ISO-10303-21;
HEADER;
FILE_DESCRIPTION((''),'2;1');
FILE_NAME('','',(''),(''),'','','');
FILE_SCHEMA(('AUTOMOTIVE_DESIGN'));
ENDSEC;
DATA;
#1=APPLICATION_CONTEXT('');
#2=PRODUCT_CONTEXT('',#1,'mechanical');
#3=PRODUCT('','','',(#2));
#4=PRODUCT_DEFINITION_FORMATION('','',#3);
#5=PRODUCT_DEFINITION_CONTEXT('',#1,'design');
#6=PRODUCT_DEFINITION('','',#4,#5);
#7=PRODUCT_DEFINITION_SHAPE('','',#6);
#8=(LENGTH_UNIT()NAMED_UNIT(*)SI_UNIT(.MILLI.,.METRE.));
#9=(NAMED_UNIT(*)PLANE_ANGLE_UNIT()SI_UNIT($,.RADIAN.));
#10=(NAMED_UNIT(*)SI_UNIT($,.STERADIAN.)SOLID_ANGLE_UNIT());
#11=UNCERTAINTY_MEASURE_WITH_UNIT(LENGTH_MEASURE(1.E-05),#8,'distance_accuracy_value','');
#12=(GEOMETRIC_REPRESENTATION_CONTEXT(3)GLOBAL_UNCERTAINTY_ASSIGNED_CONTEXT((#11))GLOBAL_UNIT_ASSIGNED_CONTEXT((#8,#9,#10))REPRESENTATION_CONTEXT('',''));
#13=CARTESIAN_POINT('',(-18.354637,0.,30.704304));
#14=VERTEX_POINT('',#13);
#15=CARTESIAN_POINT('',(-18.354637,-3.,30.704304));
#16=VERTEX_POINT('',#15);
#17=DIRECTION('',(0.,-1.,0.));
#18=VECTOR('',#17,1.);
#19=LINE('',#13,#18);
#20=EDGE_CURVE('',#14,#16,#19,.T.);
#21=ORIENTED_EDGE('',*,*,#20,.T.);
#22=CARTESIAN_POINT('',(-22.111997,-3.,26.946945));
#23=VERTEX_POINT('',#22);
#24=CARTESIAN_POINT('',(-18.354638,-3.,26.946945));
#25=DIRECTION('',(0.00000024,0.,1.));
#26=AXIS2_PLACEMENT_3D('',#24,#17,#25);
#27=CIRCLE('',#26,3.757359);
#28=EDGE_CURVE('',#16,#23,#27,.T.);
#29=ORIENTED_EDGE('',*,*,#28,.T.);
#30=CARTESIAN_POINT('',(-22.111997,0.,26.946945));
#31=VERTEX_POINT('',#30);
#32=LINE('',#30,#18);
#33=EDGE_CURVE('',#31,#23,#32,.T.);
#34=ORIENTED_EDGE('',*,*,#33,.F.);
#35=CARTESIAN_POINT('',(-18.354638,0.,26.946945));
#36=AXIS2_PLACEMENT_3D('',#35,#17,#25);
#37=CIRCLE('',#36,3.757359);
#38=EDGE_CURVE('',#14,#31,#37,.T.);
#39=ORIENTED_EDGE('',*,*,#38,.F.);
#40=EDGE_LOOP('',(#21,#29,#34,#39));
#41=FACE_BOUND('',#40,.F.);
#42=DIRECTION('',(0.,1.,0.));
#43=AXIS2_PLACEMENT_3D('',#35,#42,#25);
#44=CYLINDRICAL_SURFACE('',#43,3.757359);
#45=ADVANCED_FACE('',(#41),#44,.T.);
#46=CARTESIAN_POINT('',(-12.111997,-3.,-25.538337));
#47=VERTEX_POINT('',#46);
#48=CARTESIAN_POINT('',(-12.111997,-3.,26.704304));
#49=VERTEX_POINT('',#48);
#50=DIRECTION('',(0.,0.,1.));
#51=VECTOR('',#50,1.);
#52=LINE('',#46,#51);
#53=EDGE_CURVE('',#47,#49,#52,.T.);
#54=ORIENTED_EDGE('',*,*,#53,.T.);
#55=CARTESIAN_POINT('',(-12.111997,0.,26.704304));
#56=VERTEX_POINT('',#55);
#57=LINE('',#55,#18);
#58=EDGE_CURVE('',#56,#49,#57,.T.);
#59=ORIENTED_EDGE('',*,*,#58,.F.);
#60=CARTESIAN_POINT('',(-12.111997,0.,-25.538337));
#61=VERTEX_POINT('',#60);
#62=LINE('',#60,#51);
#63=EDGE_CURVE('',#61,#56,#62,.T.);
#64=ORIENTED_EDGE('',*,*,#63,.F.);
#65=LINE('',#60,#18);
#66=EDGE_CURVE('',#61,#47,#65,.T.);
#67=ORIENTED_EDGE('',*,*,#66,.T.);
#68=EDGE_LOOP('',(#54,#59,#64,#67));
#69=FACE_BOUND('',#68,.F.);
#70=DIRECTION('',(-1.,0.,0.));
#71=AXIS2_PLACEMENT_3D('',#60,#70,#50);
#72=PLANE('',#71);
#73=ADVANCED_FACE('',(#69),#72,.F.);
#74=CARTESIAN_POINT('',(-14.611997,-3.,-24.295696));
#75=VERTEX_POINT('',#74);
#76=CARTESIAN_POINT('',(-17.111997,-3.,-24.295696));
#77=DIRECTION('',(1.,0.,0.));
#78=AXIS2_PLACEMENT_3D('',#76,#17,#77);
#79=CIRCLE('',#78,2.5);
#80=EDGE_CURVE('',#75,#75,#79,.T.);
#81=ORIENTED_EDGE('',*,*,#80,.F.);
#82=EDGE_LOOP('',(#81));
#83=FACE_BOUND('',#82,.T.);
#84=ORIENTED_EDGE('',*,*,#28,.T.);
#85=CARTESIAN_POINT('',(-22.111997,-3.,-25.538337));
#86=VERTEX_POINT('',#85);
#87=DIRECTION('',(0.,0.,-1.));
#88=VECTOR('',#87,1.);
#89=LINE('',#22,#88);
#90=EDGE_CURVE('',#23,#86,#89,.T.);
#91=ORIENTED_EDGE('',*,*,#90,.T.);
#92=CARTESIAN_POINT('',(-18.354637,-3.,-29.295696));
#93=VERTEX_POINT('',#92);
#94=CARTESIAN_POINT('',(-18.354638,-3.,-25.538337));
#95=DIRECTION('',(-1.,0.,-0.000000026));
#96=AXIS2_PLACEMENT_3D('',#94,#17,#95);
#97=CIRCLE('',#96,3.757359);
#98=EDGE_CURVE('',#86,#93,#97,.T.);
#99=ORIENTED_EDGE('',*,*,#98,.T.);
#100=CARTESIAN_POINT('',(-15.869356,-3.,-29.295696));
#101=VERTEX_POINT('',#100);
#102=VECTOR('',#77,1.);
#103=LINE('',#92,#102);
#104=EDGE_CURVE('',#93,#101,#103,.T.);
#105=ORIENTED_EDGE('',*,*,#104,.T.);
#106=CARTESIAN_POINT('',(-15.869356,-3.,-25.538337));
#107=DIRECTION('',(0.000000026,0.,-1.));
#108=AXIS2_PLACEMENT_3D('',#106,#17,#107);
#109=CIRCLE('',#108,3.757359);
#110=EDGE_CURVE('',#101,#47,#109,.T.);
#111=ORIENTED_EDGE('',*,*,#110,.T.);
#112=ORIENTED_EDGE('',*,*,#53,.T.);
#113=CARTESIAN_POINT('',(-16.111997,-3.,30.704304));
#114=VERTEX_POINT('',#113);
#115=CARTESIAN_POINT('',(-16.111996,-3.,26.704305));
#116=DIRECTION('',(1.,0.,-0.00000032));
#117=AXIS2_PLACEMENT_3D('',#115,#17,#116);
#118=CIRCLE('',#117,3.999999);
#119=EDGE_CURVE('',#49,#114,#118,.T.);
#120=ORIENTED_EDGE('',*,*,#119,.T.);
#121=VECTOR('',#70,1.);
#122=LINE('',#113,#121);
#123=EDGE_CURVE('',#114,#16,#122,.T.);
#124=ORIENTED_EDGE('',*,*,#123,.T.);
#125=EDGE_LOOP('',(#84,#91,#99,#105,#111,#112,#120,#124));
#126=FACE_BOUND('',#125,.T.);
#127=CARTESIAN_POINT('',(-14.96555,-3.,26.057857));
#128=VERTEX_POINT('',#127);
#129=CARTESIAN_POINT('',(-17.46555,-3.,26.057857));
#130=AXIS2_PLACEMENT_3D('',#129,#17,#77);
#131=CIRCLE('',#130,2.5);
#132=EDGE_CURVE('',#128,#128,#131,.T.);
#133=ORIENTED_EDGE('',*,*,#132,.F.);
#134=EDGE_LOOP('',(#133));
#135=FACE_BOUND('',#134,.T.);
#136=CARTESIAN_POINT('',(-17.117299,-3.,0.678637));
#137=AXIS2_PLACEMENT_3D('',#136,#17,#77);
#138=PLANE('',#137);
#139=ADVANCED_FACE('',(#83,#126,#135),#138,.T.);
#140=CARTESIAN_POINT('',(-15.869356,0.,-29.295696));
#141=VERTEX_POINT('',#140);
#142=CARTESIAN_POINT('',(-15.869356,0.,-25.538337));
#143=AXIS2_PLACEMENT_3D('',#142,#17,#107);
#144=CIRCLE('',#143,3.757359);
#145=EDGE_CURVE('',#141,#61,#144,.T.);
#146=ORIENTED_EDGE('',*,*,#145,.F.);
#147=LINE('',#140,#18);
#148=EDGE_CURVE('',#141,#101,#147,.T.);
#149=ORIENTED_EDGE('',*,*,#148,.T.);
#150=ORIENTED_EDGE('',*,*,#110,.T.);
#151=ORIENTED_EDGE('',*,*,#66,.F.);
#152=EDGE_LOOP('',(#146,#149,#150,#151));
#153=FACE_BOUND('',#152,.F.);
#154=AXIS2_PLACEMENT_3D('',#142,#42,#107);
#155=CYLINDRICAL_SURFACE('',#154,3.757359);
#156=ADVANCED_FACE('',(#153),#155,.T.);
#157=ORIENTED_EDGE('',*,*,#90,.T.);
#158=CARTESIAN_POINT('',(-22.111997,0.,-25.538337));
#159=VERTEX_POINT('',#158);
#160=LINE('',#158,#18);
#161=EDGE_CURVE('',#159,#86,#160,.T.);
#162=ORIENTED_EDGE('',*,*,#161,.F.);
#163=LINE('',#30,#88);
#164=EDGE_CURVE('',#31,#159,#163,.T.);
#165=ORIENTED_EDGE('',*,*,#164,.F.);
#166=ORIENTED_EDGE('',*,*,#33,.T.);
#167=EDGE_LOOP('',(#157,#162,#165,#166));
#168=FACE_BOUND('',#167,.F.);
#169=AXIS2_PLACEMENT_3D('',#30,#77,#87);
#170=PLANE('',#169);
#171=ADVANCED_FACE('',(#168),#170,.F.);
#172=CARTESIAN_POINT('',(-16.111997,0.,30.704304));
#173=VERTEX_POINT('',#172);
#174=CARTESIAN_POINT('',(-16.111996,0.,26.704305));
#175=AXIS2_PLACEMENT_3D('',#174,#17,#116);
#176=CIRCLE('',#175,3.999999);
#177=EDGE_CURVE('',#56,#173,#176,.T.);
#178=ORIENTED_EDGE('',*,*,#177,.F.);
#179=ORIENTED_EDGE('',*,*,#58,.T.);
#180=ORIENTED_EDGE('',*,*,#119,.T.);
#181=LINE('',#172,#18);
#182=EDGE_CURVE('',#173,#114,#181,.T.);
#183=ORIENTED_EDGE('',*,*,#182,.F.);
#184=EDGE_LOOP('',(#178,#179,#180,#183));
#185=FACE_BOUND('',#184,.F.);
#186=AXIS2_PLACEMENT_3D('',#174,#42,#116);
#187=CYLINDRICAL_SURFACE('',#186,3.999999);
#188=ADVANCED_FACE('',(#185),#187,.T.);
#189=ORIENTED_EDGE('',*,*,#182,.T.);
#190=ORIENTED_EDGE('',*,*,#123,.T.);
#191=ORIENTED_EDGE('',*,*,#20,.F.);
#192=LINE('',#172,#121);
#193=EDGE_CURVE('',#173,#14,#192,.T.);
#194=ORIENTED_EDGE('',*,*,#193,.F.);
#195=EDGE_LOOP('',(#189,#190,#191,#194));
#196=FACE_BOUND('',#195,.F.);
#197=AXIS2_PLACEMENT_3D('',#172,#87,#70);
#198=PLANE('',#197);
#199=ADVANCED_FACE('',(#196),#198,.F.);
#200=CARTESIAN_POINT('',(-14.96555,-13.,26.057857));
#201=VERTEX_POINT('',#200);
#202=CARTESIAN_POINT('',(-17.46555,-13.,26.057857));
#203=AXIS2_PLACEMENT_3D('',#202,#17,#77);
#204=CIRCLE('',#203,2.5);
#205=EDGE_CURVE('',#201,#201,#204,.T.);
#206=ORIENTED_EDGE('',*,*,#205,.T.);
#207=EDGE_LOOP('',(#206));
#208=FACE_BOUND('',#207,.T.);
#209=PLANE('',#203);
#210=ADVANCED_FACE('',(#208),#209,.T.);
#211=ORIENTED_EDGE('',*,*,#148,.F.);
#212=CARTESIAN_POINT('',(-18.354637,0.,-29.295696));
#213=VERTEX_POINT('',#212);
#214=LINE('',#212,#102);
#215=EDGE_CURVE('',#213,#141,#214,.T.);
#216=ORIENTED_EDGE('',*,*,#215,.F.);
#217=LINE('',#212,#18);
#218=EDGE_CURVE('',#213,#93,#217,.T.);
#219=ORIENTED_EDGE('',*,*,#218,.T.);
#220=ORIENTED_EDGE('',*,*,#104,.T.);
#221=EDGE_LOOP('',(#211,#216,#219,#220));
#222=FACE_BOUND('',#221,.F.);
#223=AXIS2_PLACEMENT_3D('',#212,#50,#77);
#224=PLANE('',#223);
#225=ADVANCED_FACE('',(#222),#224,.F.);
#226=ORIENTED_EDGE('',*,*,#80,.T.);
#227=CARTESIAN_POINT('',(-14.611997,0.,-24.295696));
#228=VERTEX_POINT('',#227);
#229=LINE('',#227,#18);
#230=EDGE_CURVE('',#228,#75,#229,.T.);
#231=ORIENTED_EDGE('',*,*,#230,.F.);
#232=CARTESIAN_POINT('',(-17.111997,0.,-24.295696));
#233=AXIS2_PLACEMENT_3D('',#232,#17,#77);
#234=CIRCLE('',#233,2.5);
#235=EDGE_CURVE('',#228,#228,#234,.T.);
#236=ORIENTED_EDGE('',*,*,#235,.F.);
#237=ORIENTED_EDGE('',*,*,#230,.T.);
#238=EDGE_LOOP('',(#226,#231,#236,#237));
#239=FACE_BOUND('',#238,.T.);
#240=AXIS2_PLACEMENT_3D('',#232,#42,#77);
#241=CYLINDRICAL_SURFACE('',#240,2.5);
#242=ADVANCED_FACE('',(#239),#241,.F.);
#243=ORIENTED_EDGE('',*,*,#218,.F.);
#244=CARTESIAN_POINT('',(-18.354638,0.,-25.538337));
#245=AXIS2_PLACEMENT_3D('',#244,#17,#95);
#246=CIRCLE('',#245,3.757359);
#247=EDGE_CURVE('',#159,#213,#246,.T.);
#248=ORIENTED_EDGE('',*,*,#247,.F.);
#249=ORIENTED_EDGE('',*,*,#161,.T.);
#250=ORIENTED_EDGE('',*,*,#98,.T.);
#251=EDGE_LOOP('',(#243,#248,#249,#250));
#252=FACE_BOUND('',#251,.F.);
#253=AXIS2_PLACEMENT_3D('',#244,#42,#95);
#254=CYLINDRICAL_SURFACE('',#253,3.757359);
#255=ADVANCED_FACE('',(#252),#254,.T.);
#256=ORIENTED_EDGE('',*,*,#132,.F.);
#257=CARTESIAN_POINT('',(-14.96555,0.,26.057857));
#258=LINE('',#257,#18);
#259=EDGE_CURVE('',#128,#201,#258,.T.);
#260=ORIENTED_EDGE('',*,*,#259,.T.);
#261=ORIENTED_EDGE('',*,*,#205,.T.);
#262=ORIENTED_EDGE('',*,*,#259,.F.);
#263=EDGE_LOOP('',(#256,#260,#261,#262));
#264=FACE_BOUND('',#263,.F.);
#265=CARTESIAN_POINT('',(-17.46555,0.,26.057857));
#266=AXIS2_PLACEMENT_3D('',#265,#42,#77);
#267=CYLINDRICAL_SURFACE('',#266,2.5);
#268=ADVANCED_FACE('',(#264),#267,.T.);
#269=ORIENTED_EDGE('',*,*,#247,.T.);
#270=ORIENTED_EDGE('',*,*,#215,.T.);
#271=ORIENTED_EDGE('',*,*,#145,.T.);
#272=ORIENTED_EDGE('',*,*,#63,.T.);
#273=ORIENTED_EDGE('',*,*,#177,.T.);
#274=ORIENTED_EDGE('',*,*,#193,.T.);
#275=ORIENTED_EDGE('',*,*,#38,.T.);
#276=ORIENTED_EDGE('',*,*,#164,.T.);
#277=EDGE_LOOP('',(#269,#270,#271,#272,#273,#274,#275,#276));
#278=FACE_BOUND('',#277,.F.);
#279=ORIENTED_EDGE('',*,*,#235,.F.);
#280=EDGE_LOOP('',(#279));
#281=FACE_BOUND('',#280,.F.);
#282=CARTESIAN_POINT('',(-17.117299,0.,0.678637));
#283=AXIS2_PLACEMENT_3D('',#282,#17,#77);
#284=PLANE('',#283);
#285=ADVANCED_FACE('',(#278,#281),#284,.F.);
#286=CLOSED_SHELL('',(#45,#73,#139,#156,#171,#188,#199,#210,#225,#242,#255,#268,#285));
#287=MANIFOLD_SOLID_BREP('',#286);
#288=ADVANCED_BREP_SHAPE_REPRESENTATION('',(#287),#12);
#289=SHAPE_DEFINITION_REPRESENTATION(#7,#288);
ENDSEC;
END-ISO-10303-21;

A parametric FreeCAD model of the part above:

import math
import FreeCAD as App
import Part
import Sketcher
from FreeCAD import Vector

doc = App.newDocument("Part")
body = doc.addObject("PartDesign::Body", "Body")

sketch1 = body.newObject("Sketcher::SketchObject", "Sketch")
sketch1.AttachmentSupport = (doc.getObject("XZ_Plane"), [""])
sketch1.MapMode = "FlatFace"
sketch1.addGeometry([
    Part.LineSegment(Vector(-16.1, 30.7, 0), Vector(-18.4, 30.7, 0)),
    Part.ArcOfCircle(Part.Circle(Vector(-18.4, 26.9, 0), Vector(0, 0, 1), 3.8), math.radians(90), math.radians(180)),
    Part.LineSegment(Vector(-22.1, 26.9, 0), Vector(-22.1, -25.5, 0)),
    Part.ArcOfCircle(Part.Circle(Vector(-18.4, -25.5, 0), Vector(0, 0, 1), 3.8), math.radians(-180), math.radians(-90)),
    Part.LineSegment(Vector(-18.4, -29.3, 0), Vector(-15.9, -29.3, 0)),
    Part.ArcOfCircle(Part.Circle(Vector(-15.9, -25.5, 0), Vector(0, 0, 1), 3.8), math.radians(-90), math.radians(0)),
    Part.LineSegment(Vector(-12.1, -25.5, 0), Vector(-12.1, 26.7, 0)),
    Part.ArcOfCircle(Part.Circle(Vector(-16.1, 26.7, 0), Vector(0, 0, 1), 4), math.radians(0), math.radians(90)),
    Part.Circle(Vector(-17.1, -24.3, 0), Vector(0, 0, 1), 2.5),
    Part.Circle(Vector(-17.5, 26.1, 0), Vector(0, 0, 1), 2.5),
], False)
sketch1.addConstraint([
    Sketcher.Constraint("Tangent", 0, 2, 1, 1),
    Sketcher.Constraint("Tangent", 1, 2, 2, 1),
    Sketcher.Constraint("Tangent", 2, 2, 3, 1),
    Sketcher.Constraint("Tangent", 3, 2, 4, 1),
    Sketcher.Constraint("Tangent", 4, 2, 5, 1),
    Sketcher.Constraint("Tangent", 5, 2, 6, 1),
    Sketcher.Constraint("Tangent", 6, 2, 7, 1),
    Sketcher.Constraint("Tangent", 7, 2, 0, 1),
    Sketcher.Constraint("Horizontal", 0),
    Sketcher.Constraint("Vertical", 2),
    Sketcher.Constraint("Horizontal", 4),
    Sketcher.Constraint("Vertical", 6),
    Sketcher.Constraint("Equal", 1, 3),
    Sketcher.Constraint("Equal", 3, 5),
    Sketcher.Constraint("Equal", 8, 9),
    Sketcher.Constraint("Diameter", 8, 5.0),
    Sketcher.Constraint("Radius", 7, 3.999999),
    Sketcher.Constraint("DistanceX", 8, 3, 7, 3, 1.000001),
    Sketcher.Constraint("DistanceY", 8, 3, 7, 3, 51.000001),
    Sketcher.Constraint("DistanceX", 1, 2, 7, 3, 6.000001),
    Sketcher.Constraint("DistanceY", 3, 2, 8, 3, 5.0),
    Sketcher.Constraint("Radius", 1, 3.757359),
    Sketcher.Constraint("DistanceX", 9, 3, -1, 1, 17.46555),
    Sketcher.Constraint("DistanceY", 9, 3, 7, 3, 0.646448),
    Sketcher.Constraint("DistanceX", 1, 3, -1, 1, 18.354638),
    Sketcher.Constraint("DistanceY", -1, 1, 1, 3, 26.946945),
])
pad1 = body.newObject("PartDesign::Pad", "Pad")
pad1.Profile = sketch1
pad1.Length = 3

sketch2 = body.newObject("Sketcher::SketchObject", "Sketch001")
sketch2.AttachmentSupport = (doc.getObject("XZ_Plane"), [""])
sketch2.MapMode = "FlatFace"
sketch2.addGeometry(Part.Circle(Vector(-17.5, 26.1, 0), Vector(0, 0, 1), 2.5), False)
sketch2.addConstraint([
    Sketcher.Constraint("Diameter", 0, 5.0),
    Sketcher.Constraint("DistanceX", 0, 3, -1, 1, 17.46555),
    Sketcher.Constraint("DistanceY", -1, 1, 0, 3, 26.057857),
])
pad2 = body.newObject("PartDesign::Pad", "Pad001")
pad2.Profile = sketch2
pad2.Length = 13

doc.recompute()
